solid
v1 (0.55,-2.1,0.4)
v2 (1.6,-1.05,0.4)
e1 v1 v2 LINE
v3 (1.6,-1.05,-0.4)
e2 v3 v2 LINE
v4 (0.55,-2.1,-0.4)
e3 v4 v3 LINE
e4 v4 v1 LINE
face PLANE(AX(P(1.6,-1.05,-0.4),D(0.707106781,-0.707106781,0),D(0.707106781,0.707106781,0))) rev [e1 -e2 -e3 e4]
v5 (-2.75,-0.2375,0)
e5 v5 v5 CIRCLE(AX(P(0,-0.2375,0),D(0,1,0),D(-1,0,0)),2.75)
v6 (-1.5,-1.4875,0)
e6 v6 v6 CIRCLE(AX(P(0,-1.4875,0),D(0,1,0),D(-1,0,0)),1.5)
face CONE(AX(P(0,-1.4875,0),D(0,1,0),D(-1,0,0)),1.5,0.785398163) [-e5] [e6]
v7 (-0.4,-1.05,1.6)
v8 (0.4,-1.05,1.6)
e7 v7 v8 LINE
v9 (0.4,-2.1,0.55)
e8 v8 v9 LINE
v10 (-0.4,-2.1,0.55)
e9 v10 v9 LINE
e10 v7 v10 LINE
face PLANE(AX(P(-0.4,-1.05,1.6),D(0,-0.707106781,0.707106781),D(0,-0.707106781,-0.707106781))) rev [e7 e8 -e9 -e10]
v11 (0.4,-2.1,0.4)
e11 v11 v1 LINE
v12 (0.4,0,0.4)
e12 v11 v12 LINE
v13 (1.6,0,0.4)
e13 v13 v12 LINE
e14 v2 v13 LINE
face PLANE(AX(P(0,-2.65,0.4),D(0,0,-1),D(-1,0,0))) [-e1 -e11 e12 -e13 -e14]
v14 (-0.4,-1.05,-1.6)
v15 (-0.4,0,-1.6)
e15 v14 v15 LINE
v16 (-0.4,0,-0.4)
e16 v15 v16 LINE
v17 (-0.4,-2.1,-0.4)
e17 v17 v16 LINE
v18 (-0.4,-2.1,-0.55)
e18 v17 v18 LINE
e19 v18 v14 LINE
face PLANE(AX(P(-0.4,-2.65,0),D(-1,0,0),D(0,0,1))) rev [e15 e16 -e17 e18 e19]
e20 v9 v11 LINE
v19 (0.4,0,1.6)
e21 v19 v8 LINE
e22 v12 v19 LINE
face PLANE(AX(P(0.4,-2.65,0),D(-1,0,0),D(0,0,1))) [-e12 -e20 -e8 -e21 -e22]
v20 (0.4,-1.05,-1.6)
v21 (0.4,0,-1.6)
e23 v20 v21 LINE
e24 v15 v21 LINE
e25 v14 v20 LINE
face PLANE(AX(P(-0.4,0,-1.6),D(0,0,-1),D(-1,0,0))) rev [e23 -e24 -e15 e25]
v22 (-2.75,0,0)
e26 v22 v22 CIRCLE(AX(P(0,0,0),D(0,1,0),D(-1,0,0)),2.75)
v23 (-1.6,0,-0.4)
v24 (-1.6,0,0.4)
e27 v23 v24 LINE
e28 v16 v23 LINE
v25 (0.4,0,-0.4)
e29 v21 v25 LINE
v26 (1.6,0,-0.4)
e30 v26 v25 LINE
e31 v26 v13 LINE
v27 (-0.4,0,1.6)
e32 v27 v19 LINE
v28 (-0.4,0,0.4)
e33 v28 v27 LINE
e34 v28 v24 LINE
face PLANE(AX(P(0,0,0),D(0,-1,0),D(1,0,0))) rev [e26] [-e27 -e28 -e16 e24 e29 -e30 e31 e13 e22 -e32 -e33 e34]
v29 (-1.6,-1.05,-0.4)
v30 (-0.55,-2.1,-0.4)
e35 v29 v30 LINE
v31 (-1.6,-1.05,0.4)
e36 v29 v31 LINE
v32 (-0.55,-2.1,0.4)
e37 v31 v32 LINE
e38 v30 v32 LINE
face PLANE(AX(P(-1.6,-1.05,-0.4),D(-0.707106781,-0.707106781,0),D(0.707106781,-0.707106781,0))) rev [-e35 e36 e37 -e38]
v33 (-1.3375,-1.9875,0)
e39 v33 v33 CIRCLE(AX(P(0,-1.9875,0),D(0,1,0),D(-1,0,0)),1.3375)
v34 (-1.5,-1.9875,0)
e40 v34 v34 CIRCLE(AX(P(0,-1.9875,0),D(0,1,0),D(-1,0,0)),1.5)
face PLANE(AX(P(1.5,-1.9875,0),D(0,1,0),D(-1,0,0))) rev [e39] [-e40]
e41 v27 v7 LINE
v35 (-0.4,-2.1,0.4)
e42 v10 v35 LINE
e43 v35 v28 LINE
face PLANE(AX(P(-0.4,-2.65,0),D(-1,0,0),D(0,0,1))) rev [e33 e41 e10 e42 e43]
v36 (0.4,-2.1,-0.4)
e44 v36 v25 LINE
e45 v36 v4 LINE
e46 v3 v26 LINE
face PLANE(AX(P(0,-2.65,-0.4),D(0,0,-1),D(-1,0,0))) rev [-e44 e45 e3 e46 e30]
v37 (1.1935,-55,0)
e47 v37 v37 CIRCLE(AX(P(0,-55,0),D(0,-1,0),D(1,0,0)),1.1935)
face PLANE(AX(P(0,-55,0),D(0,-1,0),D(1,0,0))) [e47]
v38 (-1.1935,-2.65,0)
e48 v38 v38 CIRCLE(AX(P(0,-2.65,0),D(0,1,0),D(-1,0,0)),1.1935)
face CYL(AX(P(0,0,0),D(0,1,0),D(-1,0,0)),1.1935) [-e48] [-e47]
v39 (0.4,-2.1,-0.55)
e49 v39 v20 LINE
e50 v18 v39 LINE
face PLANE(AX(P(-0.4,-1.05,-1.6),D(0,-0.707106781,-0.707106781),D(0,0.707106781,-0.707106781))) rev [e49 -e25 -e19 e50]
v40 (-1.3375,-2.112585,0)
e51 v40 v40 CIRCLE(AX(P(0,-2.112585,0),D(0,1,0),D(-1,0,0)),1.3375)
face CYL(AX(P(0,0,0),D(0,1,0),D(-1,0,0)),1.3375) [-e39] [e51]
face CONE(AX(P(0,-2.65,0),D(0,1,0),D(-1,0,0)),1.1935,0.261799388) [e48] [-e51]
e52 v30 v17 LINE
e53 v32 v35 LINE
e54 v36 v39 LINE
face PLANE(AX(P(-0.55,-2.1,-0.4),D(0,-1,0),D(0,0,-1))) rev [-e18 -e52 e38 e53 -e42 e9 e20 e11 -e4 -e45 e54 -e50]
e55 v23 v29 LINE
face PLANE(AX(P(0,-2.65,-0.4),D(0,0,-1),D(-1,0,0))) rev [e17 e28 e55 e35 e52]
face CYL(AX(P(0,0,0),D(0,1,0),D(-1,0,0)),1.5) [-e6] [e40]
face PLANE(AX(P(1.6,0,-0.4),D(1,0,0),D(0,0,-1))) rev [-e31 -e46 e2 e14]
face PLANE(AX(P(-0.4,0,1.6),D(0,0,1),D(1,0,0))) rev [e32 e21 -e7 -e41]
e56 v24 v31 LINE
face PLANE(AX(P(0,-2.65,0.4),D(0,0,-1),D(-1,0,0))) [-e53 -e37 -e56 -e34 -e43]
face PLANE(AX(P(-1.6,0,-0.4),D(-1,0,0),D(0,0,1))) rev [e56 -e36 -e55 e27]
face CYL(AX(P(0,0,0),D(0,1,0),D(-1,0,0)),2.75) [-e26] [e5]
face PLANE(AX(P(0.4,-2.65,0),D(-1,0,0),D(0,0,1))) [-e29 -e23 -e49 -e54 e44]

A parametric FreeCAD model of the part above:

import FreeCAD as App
import Part
import Sketcher
Q = App.Units.Quantity


def add_polygon(sketch, points):
    """Adds a closed chain of lines whose ends are joined by coincident constraints."""
    first, n = sketch.GeometryCount, len(points)
    for a, b in zip(points, points[1:] + points[:1]):
        sketch.addGeometry(Part.LineSegment(App.Vector(*a, 0), App.Vector(*b, 0)), False)
    for i in range(n):
        sketch.addConstraint(Sketcher.Constraint("Coincident", first + i, 2, first + (i + 1) % n, 1))

doc = App.newDocument("Part")
body = doc.addObject("PartDesign::Body", "Body")

# Sketch on XY plane
sketch1 = body.newObject("Sketcher::SketchObject", "Sketch")
sketch1.AttachmentSupport = (doc.getObject("XY_Plane"), [""])
sketch1.MapMode = "FlatFace"
add_polygon(sketch1, [(2.75, 0), (0, 0), (0, -8), (1.19, -8), (1.19, -2.65), (1.34, -2.11), (1.34, -1.99), (1.5, -1.99), (1.5, -1.49), (2.75, -0.24)])  # lines 0-9
sketch1.addConstraint(Sketcher.Constraint("Horizontal", 0))
sketch1.addConstraint(Sketcher.Constraint("Vertical", 1))
sketch1.addConstraint(Sketcher.Constraint("Horizontal", 2))
sketch1.addConstraint(Sketcher.Constraint("Vertical", 3))
sketch1.addConstraint(Sketcher.Constraint("Vertical", 5))
sketch1.addConstraint(Sketcher.Constraint("Horizontal", 6))
sketch1.addConstraint(Sketcher.Constraint("Vertical", 7))
sketch1.addConstraint(Sketcher.Constraint("Vertical", 9))
sketch1.addConstraint(Sketcher.Constraint("Coincident", 0, 2, -1, 1))
sketch1.addConstraint(Sketcher.Constraint("DistanceY", 1, 2, 1, 1, Q("8 mm")))
sketch1.addConstraint(Sketcher.Constraint("Angle", 4, Q("75 deg")))
sketch1.addConstraint(Sketcher.Constraint("Angle", 8, Q("45 deg")))
sketch1.addConstraint(Sketcher.Constraint("DistanceY", 7, 1, 7, 2, Q("0.5 mm")))
sketch1.addConstraint(Sketcher.Constraint("DistanceX", 0, 2, 0, 1, Q("2.75 mm")))
sketch1.addConstraint(Sketcher.Constraint("DistanceY", 3, 1, 3, 2, Q("5.35 mm")))
sketch1.addConstraint(Sketcher.Constraint("DistanceX", -1, 1, 6, 2, Q("1.5 mm")))
sketch1.addConstraint(Sketcher.Constraint("DistanceX", 2, 1, 2, 2, Q("1.1935 mm")))
sketch1.addConstraint(Sketcher.Constraint("DistanceX", 6, 1, 6, 2, Q("0.1625 mm")))
sketch1.addConstraint(Sketcher.Constraint("DistanceY", 9, 1, 9, 2, Q("0.2375 mm")))
revolution = body.newObject("PartDesign::Revolution", "Revolution")
revolution.Profile = sketch1
revolution.ReferenceAxis = (sketch1, ["V_Axis"])
revolution.Angle = 360

# Sketch on XY plane
sketch2 = body.newObject("Sketcher::SketchObject", "Sketch001")
sketch2.AttachmentSupport = (doc.getObject("XY_Plane"), [""])
sketch2.MapMode = "FlatFace"
add_polygon(sketch2, [(-0.6, -2.1), (0.6, -2.1), (1.6, -1.1), (1.6, 0), (-1.6, 0), (-1.6, -1.1)])  # lines 0-5
sketch2.addConstraint(Sketcher.Constraint("Horizontal", 0))
sketch2.addConstraint(Sketcher.Constraint("Vertical", 2))
sketch2.addConstraint(Sketcher.Constraint("Horizontal", 3))
sketch2.addConstraint(Sketcher.Constraint("Vertical", 4))
sketch2.addConstraint(Sketcher.Constraint("Symmetric", 2, 2, 3, 2, -1, 1))
sketch2.addConstraint(Sketcher.Constraint("Perpendicular", 1, 5))
sketch2.addConstraint(Sketcher.Constraint("Horizontal", 1, 2, 4, 2))
sketch2.addConstraint(Sketcher.Constraint("Equal", 1, 5))
sketch2.addConstraint(Sketcher.Constraint("DistanceX", 0, 1, 0, 2, Q("1.1 mm")))
sketch2.addConstraint(Sketcher.Constraint("DistanceX", 3, 2, 3, 1, Q("3.2 mm")))
sketch2.addConstraint(Sketcher.Constraint("DistanceY", 2, 1, 2, 2, Q("1.05 mm")))
pocket1 = body.newObject("PartDesign::Pocket", "Pocket")
pocket1.Profile = sketch2
pocket1.Type = "TwoLengths"
pocket1.Length = 0.4
pocket1.Length2 = 0.4
pocket1.Reversed = True

# Sketch on YZ plane
sketch3 = body.newObject("Sketcher::SketchObject", "Sketch002")
sketch3.AttachmentSupport = (doc.getObject("YZ_Plane"), [""])
sketch3.MapMode = "FlatFace"
add_polygon(sketch3, [(-2.1, 0.6), (-2.1, -0.6), (-1.1, -1.6), (0, -1.6), (0, 1.6), (-1.1, 1.6)])  # lines 0-5
sketch3.addConstraint(Sketcher.Constraint("Vertical", 0))
sketch3.addConstraint(Sketcher.Constraint("Horizontal", 2))
sketch3.addConstraint(Sketcher.Constraint("Vertical", 3))
sketch3.addConstraint(Sketcher.Constraint("Horizontal", 4))
sketch3.addConstraint(Sketcher.Constraint("Symmetric", 2, 2, 3, 2, -1, 1))
sketch3.addConstraint(Sketcher.Constraint("Perpendicular", 1, 5))
sketch3.addConstraint(Sketcher.Constraint("Vertical", 1, 2, 4, 2))
sketch3.addConstraint(Sketcher.Constraint("Equal", 1, 5))
sketch3.addConstraint(Sketcher.Constraint("DistanceY", 0, 2, 0, 1, Q("1.1 mm")))
sketch3.addConstraint(Sketcher.Constraint("DistanceY", 3, 1, 3, 2, Q("3.2 mm")))
sketch3.addConstraint(Sketcher.Constraint("DistanceX", 2, 1, 2, 2, Q("1.05 mm")))
pocket2 = body.newObject("PartDesign::Pocket", "Pocket001")
pocket2.Profile = sketch3
pocket2.Type = "TwoLengths"
pocket2.Length = 0.4
pocket2.Length2 = 0.4
pocket2.Reversed = True

# Sketch on XZ plane
sketch4 = body.newObject("Sketcher::SketchObject", "Sketch003")
sketch4.AttachmentSupport = (doc.getObject("XZ_Plane"), [""])
sketch4.MapMode = "FlatFace"
sketch4.AttachmentOffset = App.Placement(App.Vector(0, 0, 55), App.Rotation())
sketch4.addGeometry(Part.Circle(App.Vector(0, 0, 0), App.Vector(0, 0, 1), 1.2), False)
sketch4.addConstraint(Sketcher.Constraint("Coincident", 0, 3, -1, 1))
sketch4.addConstraint(Sketcher.Constraint("Diameter", 0, Q("2.387 mm")))
pad1 = body.newObject("PartDesign::Pad", "Pad")
pad1.Profile = sketch4
pad1.Length = 47
pad1.Reversed = True

doc.recompute()
